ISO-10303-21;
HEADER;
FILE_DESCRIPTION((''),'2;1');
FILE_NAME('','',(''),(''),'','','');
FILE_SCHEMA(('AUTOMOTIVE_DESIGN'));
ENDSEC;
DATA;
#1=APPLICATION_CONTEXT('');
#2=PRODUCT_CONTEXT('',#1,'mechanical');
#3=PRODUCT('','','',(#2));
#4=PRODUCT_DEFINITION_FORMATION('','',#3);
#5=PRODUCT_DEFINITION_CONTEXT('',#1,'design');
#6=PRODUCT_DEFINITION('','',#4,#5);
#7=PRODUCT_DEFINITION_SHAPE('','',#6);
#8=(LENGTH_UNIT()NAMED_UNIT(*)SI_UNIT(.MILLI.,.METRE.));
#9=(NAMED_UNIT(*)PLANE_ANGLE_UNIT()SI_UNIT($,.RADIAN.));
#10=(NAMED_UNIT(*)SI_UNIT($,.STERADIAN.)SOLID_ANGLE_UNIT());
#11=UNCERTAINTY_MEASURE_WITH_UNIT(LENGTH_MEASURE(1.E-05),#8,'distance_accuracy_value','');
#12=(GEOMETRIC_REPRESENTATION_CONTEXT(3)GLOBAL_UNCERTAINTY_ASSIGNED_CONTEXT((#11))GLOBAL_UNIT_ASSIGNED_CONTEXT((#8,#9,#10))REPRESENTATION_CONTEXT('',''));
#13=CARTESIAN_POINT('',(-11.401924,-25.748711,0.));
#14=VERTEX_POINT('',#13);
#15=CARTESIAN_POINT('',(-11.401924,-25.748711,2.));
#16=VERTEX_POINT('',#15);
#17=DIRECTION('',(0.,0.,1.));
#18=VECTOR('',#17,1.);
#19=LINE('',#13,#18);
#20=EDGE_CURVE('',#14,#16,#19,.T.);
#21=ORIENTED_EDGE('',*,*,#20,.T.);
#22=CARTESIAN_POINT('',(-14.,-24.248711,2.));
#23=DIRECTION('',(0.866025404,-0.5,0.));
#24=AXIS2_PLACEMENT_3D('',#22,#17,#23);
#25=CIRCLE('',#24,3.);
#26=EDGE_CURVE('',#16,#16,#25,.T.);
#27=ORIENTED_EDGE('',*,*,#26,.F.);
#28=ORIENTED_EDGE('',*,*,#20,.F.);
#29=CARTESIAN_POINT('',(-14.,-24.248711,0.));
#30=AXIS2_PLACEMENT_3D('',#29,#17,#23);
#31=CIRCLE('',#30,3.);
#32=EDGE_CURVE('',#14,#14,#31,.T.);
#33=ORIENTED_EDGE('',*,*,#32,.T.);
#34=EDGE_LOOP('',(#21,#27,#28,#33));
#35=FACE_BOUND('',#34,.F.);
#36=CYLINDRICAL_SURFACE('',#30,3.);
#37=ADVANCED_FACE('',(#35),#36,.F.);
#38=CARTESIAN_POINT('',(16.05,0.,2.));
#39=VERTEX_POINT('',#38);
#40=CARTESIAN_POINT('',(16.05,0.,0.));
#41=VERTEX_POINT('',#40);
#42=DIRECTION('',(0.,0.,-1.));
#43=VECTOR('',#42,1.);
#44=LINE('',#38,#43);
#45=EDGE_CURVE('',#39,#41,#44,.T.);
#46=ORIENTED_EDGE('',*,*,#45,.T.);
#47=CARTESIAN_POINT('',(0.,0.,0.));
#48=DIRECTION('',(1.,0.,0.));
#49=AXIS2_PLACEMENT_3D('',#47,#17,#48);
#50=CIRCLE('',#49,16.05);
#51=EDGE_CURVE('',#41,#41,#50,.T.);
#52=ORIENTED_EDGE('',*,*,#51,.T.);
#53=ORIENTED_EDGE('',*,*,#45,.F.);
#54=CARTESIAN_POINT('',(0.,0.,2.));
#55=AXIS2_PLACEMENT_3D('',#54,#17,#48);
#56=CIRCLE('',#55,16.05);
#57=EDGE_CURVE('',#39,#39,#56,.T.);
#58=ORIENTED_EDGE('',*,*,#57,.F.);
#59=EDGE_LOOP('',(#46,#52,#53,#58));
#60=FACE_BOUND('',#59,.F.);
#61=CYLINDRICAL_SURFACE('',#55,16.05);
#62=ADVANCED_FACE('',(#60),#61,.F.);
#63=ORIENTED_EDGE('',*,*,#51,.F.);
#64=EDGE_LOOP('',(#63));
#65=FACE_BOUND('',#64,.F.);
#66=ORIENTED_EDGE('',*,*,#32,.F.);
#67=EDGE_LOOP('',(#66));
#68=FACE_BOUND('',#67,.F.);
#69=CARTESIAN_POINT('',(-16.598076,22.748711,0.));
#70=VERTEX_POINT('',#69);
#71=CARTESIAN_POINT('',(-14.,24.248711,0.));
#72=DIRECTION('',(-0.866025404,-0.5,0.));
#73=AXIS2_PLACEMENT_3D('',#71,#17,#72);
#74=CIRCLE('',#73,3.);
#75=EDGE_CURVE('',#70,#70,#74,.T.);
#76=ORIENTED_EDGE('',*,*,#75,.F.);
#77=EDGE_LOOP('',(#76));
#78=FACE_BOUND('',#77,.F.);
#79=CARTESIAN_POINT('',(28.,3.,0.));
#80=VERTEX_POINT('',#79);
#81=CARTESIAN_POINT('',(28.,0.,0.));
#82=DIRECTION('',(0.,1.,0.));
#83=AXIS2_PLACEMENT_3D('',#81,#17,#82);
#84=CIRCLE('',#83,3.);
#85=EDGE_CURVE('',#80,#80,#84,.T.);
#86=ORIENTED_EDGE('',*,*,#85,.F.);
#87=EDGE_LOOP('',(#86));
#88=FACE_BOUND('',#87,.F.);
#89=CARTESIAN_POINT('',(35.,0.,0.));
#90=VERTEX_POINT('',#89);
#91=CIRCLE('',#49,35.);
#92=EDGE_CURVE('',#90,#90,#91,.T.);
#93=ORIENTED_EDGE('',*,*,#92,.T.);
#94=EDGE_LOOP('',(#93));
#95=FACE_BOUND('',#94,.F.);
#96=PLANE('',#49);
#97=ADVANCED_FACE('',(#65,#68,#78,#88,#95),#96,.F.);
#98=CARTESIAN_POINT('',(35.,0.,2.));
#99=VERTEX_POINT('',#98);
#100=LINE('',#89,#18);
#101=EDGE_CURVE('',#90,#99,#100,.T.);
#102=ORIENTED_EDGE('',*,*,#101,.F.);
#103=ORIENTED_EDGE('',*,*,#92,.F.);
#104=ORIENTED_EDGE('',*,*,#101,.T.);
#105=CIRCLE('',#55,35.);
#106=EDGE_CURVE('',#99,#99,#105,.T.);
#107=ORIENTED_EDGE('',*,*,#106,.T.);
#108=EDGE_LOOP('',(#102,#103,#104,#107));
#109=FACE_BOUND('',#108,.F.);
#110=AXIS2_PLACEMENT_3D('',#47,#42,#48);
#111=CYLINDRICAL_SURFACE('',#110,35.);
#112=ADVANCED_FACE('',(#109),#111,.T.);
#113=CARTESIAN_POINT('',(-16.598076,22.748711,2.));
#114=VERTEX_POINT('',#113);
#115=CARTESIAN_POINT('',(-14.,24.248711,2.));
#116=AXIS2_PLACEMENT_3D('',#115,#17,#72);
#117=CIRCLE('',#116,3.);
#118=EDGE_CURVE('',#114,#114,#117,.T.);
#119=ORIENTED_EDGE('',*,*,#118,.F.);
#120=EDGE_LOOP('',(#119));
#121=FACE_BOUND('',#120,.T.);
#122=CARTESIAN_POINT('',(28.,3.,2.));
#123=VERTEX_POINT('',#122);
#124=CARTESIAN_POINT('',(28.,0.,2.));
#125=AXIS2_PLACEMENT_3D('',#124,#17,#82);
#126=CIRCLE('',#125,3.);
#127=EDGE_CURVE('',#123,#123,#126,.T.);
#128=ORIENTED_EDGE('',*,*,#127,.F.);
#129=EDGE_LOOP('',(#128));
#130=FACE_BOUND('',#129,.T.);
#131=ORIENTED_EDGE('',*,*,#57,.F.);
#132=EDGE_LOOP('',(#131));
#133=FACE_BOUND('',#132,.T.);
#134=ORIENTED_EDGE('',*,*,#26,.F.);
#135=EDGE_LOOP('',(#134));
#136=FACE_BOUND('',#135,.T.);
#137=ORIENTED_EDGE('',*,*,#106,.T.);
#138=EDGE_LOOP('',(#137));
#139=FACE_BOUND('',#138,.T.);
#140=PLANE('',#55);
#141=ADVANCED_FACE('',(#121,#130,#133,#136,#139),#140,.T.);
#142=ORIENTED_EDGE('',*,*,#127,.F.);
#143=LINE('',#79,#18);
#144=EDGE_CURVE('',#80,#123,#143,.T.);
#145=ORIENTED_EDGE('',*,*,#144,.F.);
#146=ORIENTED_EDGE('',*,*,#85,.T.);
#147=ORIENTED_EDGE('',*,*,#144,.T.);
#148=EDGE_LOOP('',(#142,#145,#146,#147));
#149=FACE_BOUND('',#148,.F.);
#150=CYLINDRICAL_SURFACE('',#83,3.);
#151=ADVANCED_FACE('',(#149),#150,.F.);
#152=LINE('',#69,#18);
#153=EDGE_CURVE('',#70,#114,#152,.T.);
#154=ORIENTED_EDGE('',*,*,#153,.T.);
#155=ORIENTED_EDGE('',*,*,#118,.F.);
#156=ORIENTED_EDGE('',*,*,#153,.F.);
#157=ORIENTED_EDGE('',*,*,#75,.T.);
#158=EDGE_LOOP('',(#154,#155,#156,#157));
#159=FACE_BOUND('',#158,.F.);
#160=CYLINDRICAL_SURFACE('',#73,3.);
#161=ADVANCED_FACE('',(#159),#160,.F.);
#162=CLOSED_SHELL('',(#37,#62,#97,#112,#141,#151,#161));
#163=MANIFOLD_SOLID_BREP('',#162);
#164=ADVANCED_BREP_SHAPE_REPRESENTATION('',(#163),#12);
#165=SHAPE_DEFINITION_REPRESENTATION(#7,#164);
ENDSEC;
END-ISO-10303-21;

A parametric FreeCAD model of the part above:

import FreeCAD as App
import Part
import Sketcher

doc = App.newDocument("Part")
body = doc.addObject("PartDesign::Body", "Body")

sketch1 = doc.addObject("Sketcher::SketchObject", "Sketch")
body.addObject(sketch1)
sketch1.AttachmentSupport = (doc.XY_Plane, [""])
sketch1.MapMode = "FlatFace"
sketch1.addGeometry(Part.Circle(App.Vector(0, 0, 0), App.Vector(0, 0, 1), 35), False)
sketch1.addConstraint([
    Sketcher.Constraint("Coincident", 0, 3, -1, 1),
    Sketcher.Constraint("Diameter", 0, 70.0),
])
pad1 = doc.addObject("PartDesign::Pad", "Pad")
body.addObject(pad1)
pad1.Profile = sketch1
pad1.Length = 2

sketch2 = doc.addObject("Sketcher::SketchObject", "Sketch001")
body.addObject(sketch2)
sketch2.AttachmentSupport = (doc.XY_Plane, [""])
sketch2.MapMode = "FlatFace"
sketch2.addGeometry(Part.Circle(App.Vector(28, 0, 0), App.Vector(0, 0, 1), 3), False)
sketch2.addConstraint([
    Sketcher.Constraint("PointOnObject", 0, 3, -1),
    Sketcher.Constraint("Diameter", 0, 6.0),
    Sketcher.Constraint("DistanceX", -1, 1, 0, 3, 28.0),
])
doc.recompute()
hole = doc.addObject("PartDesign::Hole", "Hole")
body.addObject(hole)
hole.Profile = sketch2
hole.ThreadType = "None"
hole.Diameter = 6
hole.DepthType = "ThroughAll"
hole.Reversed = True
doc.recompute()

polarpattern = doc.addObject("PartDesign::PolarPattern", "PolarPattern")
body.addObject(polarpattern)
polarpattern.Originals = [hole]
polarpattern.Axis = (doc.Z_Axis, [""])
polarpattern.Angle = 360
polarpattern.Occurrences = 3
body.Tip = polarpattern

sketch3 = doc.addObject("Sketcher::SketchObject", "Sketch002")
body.addObject(sketch3)
sketch3.AttachmentSupport = (doc.XY_Plane, [""])
sketch3.MapMode = "FlatFace"
sketch3.AttachmentOffset = App.Placement(App.Vector(0, 0, 2), App.Rotation())
sketch3.addGeometry(Part.Circle(App.Vector(0, 0, 0), App.Vector(0, 0, 1), 16), False)
sketch3.addConstraint([
    Sketcher.Constraint("Coincident", 0, 3, -1, 1),
    Sketcher.Constraint("Diameter", 0, 32.1),
])
pocket1 = doc.addObject("PartDesign::Pocket", "Pocket")
body.addObject(pocket1)
pocket1.Profile = sketch3
pocket1.Type = "ThroughAll"

doc.recompute()
